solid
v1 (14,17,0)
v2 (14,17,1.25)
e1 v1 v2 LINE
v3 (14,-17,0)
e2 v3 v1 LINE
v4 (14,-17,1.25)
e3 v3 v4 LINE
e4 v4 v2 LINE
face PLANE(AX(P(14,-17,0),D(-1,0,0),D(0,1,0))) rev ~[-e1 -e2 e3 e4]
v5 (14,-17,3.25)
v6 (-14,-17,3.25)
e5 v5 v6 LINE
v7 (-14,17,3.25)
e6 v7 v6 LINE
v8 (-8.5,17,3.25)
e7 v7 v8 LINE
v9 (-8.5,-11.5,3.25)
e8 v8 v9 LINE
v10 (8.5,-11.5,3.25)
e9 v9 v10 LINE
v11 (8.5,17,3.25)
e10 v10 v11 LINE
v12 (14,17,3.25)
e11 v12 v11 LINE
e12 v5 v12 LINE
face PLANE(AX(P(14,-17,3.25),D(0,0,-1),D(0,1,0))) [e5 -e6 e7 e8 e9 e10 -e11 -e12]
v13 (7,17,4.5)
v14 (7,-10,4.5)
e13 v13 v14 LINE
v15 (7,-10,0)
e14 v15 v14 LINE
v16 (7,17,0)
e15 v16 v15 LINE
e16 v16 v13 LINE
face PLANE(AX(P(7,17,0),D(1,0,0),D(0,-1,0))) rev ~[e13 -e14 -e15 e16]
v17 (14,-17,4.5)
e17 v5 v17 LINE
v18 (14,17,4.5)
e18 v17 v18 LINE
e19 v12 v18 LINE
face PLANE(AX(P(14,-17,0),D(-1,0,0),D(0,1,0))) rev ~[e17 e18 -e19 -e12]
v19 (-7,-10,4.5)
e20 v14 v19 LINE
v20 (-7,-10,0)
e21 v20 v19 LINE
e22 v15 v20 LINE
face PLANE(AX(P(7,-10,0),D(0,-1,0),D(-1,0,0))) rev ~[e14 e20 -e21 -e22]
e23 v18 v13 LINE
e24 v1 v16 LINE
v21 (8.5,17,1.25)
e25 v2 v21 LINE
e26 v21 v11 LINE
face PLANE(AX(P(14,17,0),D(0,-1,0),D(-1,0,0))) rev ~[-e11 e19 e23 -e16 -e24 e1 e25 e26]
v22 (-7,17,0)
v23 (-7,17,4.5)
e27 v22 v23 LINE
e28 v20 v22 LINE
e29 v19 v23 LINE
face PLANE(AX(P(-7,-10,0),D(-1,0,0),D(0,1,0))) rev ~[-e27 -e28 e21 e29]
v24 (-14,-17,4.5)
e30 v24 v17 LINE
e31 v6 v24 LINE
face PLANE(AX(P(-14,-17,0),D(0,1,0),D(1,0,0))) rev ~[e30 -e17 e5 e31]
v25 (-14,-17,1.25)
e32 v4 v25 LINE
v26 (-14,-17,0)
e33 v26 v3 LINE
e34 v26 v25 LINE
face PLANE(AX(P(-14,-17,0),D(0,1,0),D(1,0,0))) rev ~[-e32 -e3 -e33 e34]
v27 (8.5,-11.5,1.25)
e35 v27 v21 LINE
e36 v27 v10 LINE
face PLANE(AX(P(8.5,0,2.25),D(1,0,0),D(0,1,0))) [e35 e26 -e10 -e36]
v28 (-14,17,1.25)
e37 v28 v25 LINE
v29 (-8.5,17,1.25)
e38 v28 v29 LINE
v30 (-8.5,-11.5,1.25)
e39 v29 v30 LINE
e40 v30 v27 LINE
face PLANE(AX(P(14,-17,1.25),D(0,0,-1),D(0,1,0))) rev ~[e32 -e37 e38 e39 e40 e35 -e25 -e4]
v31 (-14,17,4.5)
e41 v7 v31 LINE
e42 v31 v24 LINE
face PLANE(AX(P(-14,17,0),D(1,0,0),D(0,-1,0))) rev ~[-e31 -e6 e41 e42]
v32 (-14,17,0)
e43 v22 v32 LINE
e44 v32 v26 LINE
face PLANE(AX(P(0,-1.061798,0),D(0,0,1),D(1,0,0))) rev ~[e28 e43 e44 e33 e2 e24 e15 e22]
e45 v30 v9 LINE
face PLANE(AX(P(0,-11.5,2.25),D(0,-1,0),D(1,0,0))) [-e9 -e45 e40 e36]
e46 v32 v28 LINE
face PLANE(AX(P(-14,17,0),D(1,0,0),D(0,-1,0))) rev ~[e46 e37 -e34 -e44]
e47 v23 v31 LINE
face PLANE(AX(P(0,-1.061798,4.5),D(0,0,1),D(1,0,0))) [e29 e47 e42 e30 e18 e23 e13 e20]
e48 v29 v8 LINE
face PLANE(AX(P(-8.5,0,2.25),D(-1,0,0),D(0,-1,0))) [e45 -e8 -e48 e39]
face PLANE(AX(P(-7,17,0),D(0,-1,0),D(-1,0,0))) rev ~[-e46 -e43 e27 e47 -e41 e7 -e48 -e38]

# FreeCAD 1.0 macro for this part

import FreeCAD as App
import Part
import Sketcher

V = App.Vector


def add_polygon(sketch, points):
    """Adds a closed chain of lines whose ends are joined by coincident constraints."""
    first, n = sketch.GeometryCount, len(points)
    for a, b in zip(points, points[1:] + points[:1]):
        sketch.addGeometry(Part.LineSegment(App.Vector(*a, 0), App.Vector(*b, 0)), False)
    for i in range(n):
        sketch.addConstraint(Sketcher.Constraint("Coincident", first + i, 2, first + (i + 1) % n, 1))

doc = App.newDocument("Part")
params = doc.addObject("Spreadsheet::Sheet", "Params")
for row, (alias, value) in enumerate([
    ("sketch1_width", "28 mm"),
    ("sketch1_width2", "7 mm"),
    ("sketch1_height", "34 mm"),
    ("sketch1_height2", "27 mm"),
    ("pad1_length", "4.5 mm"),
    ("sketch2_width", "34 mm"),
    ("sketch2_height", "2 mm"),
    ("pocket1_length", "5.5 mm"),
    ("sketch3_width", "34 mm"),
    ("sketch3_height", "2 mm"),
    ("pocket2_length", "5.5 mm"),
    ("sketch4_width", "17 mm"),
    ("sketch4_height", "2 mm"),
    ("pocket3_length", "5.5 mm"),
], start=1):
    params.set(f"A{row}", alias)
    params.set(f"B{row}", "=" + value)
    params.setAlias(f"B{row}", alias)

body = doc.addObject("PartDesign::Body", "Body")

# Sketch on XY plane
sketch1 = doc.addObject("Sketcher::SketchObject", "Sketch")
body.addObject(sketch1)
sketch1.AttachmentSupport = (doc.XY_Plane, [""])
sketch1.MapMode = "FlatFace"
add_polygon(sketch1, [(-14, -17), (14, -17), (14, 17), (7, 17), (7, -10), (-7, -10), (-7, 17), (-14, 17)])  # lines 0-7
sketch1.addConstraint([
    Sketcher.Constraint("Horizontal", 0),
    Sketcher.Constraint("Vertical", 1),
    Sketcher.Constraint("Horizontal", 2),
    Sketcher.Constraint("Vertical", 3),
    Sketcher.Constraint("Horizontal", 4),
    Sketcher.Constraint("Vertical", 5),
    Sketcher.Constraint("Horizontal", 6),
    Sketcher.Constraint("Vertical", 7),
    Sketcher.Constraint("Symmetric", 0, 2, 6, 2, -1, 1),
    Sketcher.Constraint("Symmetric", 2, 2, 5, 2, -2),
    Sketcher.Constraint("DistanceX", 0, 1, 0, 2, 28.0),
    Sketcher.Constraint("DistanceX", 2, 2, 2, 1, 7.0),
    Sketcher.Constraint("DistanceY", 1, 1, 1, 2, 34.0),
    Sketcher.Constraint("DistanceY", 3, 2, 3, 1, 27.0),
])
sketch1.setExpression("Constraints[18]", "Params.sketch1_width")
sketch1.setExpression("Constraints[19]", "Params.sketch1_width2")
sketch1.setExpression("Constraints[20]", "Params.sketch1_height")
sketch1.setExpression("Constraints[21]", "Params.sketch1_height2")
pad1 = doc.addObject("PartDesign::Pad", "Pad")
body.addObject(pad1)
pad1.Profile = sketch1
pad1.setExpression("Length", "Params.pad1_length")

# Sketch on YZ plane
sketch2 = doc.addObject("Sketcher::SketchObject", "Sketch001")
body.addObject(sketch2)
sketch2.AttachmentSupport = (doc.YZ_Plane, [""])
sketch2.MapMode = "FlatFace"
sketch2.AttachmentOffset = App.Placement(V(0, 0, -14), App.Rotation())
add_polygon(sketch2, [(17, 3.2), (17, 1.2), (-17, 1.2), (-17, 3.2)])  # lines 0-3
sketch2.addConstraint([
    Sketcher.Constraint("Vertical", 0),
    Sketcher.Constraint("Horizontal", 1),
    Sketcher.Constraint("Vertical", 2),
    Sketcher.Constraint("Horizontal", 3),
    Sketcher.Constraint("DistanceX", 1, 2, 1, 1, 34.0),
    Sketcher.Constraint("DistanceY", 0, 2, 0, 1, 2.0),
    Sketcher.Constraint("DistanceX", -1, 1, 0, 2, 17.0),
    Sketcher.Constraint("DistanceY", -1, 1, 0, 2, 1.25),
])
sketch2.setExpression("Constraints[8]", "Params.sketch2_width")
sketch2.setExpression("Constraints[9]", "Params.sketch2_height")
pocket1 = doc.addObject("PartDesign::Pocket", "Pocket")
body.addObject(pocket1)
pocket1.Profile = sketch2
pocket1.setExpression("Length", "Params.pocket1_length")
pocket1.Reversed = True

# Sketch on YZ plane
sketch3 = doc.addObject("Sketcher::SketchObject", "Sketch002")
body.addObject(sketch3)
sketch3.AttachmentSupport = (doc.YZ_Plane, [""])
sketch3.MapMode = "FlatFace"
sketch3.AttachmentOffset = App.Placement(V(0, 0, 14), App.Rotation())
add_polygon(sketch3, [(-17, 3.2), (-17, 1.2), (17, 1.2), (17, 3.2)])  # lines 0-3
sketch3.addConstraint([
    Sketcher.Constraint("Vertical", 0),
    Sketcher.Constraint("Horizontal", 1),
    Sketcher.Constraint("Vertical", 2),
    Sketcher.Constraint("Horizontal", 3),
    Sketcher.Constraint("DistanceX", 1, 1, 1, 2, 34.0),
    Sketcher.Constraint("DistanceY", 0, 2, 0, 1, 2.0),
    Sketcher.Constraint("DistanceX", 0, 2, -1, 1, 17.0),
    Sketcher.Constraint("DistanceY", -1, 1, 0, 2, 1.25),
])
sketch3.setExpression("Constraints[8]", "Params.sketch3_width")
sketch3.setExpression("Constraints[9]", "Params.sketch3_height")
pocket2 = doc.addObject("PartDesign::Pocket", "Pocket001")
body.addObject(pocket2)
pocket2.Profile = sketch3
pocket2.setExpression("Length", "Params.pocket2_length")

# Sketch on XZ plane
sketch4 = doc.addObject("Sketcher::SketchObject", "Sketch003")
body.addObject(sketch4)
sketch4.AttachmentSupport = (doc.XZ_Plane, [""])
sketch4.MapMode = "FlatFace"
sketch4.AttachmentOffset = App.Placement(V(0, 0, 17), App.Rotation())
add_polygon(sketch4, [(-8.5, 3.2), (-8.5, 1.2), (8.5, 1.2), (8.5, 3.2)])  # lines 0-3
sketch4.addConstraint([
    Sketcher.Constraint("Vertical", 0),
    Sketcher.Constraint("Horizontal", 1),
    Sketcher.Constraint("Vertical", 2),
    Sketcher.Constraint("Horizontal", 3),
    Sketcher.Constraint("DistanceX", 1, 1, 1, 2, 17.0),
    Sketcher.Constraint("DistanceY", 0, 2, 0, 1, 2.0),
    Sketcher.Constraint("DistanceX", 0, 2, -1, 1, 8.5),
    Sketcher.Constraint("DistanceY", -1, 1, 0, 2, 1.25),
])
sketch4.setExpression("Constraints[8]", "Params.sketch4_width")
sketch4.setExpression("Constraints[9]", "Params.sketch4_height")
pocket3 = doc.addObject("PartDesign::Pocket", "Pocket002")
body.addObject(pocket3)
pocket3.Profile = sketch4
pocket3.setExpression("Length", "Params.pocket3_length")

doc.recompute()
